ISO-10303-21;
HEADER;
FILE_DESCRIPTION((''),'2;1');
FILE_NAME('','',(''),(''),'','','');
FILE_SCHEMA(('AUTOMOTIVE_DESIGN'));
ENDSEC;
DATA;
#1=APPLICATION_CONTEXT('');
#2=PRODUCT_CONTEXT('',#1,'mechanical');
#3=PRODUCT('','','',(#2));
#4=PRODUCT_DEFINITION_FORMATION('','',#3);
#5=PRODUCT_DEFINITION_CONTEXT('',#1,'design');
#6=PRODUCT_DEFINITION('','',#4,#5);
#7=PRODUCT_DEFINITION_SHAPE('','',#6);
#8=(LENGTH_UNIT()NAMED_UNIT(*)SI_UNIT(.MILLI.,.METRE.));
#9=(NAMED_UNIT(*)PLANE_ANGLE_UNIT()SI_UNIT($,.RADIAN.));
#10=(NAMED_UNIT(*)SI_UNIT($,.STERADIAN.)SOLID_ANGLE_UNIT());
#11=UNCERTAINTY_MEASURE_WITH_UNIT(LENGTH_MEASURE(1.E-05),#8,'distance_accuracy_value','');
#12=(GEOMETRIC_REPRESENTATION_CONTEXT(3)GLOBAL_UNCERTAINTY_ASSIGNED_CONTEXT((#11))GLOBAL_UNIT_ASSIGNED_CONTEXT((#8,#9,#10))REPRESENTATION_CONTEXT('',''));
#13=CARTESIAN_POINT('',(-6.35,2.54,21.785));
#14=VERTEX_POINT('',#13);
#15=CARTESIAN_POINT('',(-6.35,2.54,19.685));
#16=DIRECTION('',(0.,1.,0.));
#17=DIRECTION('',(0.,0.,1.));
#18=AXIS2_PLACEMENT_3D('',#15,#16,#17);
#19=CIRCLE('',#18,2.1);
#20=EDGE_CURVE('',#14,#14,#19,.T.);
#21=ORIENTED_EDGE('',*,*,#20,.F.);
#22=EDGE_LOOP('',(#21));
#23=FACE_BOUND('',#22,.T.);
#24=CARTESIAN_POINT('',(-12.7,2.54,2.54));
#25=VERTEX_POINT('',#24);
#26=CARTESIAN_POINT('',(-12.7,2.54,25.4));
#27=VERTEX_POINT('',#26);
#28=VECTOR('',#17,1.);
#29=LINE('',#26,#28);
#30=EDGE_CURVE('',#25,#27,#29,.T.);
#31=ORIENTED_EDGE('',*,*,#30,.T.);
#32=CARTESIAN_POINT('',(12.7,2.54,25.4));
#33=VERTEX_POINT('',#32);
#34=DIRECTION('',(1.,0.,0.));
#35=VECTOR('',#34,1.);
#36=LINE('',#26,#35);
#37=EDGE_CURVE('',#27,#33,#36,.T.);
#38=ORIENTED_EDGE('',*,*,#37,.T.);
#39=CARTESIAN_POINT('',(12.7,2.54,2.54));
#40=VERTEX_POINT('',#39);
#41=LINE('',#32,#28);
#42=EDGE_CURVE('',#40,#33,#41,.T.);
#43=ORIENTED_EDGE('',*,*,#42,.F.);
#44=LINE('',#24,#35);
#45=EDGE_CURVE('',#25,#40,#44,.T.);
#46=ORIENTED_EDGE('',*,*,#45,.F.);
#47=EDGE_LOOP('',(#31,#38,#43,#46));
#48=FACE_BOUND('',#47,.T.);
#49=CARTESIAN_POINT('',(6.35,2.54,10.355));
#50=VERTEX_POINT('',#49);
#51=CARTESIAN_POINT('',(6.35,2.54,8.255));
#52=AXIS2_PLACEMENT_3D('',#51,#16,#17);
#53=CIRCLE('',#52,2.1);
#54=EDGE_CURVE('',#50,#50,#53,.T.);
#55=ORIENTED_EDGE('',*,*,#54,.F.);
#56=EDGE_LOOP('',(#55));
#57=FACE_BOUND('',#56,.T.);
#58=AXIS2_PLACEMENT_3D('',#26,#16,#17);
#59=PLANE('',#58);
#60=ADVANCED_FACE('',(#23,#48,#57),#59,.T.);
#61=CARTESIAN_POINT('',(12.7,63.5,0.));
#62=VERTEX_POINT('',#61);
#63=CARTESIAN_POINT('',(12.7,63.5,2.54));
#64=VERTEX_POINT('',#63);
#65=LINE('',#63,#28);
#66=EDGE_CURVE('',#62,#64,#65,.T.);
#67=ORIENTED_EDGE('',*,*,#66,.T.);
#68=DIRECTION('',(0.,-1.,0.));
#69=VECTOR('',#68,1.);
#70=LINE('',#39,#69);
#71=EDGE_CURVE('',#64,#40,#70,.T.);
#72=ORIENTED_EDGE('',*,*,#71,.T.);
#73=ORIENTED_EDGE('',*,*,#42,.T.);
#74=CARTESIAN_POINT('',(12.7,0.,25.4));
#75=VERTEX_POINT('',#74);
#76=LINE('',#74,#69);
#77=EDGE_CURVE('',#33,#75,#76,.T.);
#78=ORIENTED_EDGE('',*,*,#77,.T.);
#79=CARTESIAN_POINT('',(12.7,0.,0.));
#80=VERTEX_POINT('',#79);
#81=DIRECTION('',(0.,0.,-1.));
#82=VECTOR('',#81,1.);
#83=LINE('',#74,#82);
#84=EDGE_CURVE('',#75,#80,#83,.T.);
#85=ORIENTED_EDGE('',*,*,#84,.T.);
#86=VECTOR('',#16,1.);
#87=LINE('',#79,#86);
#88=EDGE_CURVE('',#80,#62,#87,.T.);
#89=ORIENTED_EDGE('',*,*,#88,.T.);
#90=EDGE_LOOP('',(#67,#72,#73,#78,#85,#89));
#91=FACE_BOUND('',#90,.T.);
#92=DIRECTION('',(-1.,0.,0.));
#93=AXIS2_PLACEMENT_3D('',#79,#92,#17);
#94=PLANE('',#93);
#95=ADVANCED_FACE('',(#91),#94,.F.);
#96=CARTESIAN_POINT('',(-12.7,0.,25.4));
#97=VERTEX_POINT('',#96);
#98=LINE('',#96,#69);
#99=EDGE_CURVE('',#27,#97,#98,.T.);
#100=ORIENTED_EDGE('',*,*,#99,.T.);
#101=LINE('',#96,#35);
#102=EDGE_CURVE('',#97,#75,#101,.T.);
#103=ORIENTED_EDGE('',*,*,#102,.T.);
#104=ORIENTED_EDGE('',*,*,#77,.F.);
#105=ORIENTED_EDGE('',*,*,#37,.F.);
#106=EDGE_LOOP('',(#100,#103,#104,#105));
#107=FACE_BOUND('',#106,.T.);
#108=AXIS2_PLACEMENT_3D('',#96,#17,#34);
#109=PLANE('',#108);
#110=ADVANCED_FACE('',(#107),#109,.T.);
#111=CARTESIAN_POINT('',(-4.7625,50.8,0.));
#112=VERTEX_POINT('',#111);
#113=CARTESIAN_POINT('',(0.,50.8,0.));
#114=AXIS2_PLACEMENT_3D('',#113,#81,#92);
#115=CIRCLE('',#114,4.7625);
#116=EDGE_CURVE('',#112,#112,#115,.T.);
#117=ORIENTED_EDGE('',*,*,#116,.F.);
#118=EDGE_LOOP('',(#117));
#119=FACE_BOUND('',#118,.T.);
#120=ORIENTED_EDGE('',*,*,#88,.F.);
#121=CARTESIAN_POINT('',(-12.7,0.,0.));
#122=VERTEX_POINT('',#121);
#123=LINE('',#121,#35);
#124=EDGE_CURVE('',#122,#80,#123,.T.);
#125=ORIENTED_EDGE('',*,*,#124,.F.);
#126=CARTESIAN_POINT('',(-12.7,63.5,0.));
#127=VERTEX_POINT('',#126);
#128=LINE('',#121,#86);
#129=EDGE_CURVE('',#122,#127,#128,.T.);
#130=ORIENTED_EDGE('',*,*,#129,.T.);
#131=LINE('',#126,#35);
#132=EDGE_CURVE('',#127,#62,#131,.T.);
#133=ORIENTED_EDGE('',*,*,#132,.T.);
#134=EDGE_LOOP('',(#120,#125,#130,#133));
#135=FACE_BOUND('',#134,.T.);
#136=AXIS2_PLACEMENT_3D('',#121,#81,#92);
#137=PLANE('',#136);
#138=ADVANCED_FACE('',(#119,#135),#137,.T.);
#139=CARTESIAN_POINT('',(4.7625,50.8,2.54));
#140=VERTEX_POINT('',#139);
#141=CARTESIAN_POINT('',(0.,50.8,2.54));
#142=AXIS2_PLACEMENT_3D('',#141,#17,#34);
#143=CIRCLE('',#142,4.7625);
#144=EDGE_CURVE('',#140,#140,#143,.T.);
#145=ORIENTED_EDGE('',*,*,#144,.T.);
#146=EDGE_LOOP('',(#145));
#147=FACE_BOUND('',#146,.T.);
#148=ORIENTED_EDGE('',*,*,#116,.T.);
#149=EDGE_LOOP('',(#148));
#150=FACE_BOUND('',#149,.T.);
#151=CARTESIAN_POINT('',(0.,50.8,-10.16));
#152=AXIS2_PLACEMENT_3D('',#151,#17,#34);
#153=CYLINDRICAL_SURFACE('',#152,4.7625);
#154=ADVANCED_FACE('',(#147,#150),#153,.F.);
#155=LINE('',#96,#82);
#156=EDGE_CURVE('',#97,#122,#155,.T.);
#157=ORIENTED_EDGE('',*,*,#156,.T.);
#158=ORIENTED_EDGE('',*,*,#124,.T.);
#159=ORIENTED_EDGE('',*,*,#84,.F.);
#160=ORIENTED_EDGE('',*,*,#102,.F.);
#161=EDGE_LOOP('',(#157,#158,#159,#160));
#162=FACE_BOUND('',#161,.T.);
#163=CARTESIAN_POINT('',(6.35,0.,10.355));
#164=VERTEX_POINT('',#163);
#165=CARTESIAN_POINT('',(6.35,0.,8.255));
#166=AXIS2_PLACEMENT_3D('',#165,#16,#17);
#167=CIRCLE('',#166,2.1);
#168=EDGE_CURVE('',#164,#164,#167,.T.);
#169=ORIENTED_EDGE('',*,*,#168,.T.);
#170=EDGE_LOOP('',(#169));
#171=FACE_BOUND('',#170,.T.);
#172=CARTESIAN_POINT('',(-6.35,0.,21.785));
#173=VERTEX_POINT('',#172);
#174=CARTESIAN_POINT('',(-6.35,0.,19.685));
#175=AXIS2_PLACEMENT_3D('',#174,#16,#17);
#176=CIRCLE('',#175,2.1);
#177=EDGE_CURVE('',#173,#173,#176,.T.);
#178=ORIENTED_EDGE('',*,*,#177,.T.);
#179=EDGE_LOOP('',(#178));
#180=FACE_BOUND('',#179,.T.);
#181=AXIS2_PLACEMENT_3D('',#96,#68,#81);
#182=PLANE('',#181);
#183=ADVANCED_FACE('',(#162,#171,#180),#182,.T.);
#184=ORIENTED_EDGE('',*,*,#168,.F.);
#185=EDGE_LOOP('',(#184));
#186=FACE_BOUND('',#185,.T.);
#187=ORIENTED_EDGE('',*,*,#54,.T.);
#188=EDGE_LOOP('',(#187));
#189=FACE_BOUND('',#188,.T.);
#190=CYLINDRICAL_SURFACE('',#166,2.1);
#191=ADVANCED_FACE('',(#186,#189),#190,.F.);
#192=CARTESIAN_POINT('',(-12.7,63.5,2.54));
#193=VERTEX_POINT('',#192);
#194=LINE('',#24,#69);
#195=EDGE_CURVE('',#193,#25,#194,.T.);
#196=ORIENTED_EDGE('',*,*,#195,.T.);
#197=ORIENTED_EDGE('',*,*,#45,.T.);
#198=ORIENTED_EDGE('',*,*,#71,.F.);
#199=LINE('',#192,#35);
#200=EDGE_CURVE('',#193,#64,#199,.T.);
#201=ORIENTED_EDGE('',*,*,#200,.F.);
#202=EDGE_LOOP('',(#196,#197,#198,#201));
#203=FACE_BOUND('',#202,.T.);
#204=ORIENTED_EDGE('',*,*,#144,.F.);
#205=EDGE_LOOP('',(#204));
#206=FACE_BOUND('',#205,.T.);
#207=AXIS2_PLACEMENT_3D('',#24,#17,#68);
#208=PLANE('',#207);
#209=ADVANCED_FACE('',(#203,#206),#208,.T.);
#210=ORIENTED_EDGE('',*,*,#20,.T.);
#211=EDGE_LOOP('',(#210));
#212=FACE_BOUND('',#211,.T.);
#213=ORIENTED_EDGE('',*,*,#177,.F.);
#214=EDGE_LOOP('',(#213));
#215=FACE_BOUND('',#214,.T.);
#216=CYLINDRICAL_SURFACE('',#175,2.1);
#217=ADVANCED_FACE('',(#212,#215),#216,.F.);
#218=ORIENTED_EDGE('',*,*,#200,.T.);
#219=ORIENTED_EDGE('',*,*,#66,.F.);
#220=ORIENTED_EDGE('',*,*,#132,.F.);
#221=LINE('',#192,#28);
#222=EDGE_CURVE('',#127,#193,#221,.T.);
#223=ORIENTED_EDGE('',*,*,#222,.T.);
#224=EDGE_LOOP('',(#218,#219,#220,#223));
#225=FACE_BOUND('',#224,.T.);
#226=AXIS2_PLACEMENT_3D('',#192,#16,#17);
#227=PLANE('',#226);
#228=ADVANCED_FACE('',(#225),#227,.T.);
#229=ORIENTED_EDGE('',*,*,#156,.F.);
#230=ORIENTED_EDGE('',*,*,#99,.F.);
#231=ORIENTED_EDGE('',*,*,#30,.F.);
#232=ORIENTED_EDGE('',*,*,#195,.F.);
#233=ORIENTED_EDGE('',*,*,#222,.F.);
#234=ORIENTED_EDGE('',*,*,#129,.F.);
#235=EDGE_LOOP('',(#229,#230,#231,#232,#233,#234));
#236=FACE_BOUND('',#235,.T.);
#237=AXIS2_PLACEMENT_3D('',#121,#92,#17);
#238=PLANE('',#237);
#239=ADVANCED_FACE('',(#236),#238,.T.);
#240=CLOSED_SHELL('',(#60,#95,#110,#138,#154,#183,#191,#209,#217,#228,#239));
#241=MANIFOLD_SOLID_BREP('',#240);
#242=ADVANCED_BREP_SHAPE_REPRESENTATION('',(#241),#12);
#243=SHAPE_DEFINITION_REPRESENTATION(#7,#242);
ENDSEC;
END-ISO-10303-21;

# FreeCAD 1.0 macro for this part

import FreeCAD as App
import Part
import Sketcher

V = App.Vector
Q = App.Units.Quantity


def add_polygon(sketch, points):
    """Adds a closed chain of lines whose ends are joined by coincident constraints."""
    first, n = sketch.GeometryCount, len(points)
    for a, b in zip(points, points[1:] + points[:1]):
        sketch.addGeometry(Part.LineSegment(App.Vector(*a, 0), App.Vector(*b, 0)), False)
    for i in range(n):
        sketch.addConstraint(Sketcher.Constraint("Coincident", first + i, 2, first + (i + 1) % n, 1))

doc = App.newDocument("Part")
body = doc.addObject("PartDesign::Body", "Body")

# Sketch on YZ plane
sketch1 = body.newObject("Sketcher::SketchObject", "Sketch")
sketch1.AttachmentSupport = (doc.getObject("YZ_Plane"), [""])
sketch1.MapMode = "FlatFace"
add_polygon(sketch1, [(0, 25.4), (0, 0), (63.5, 0), (63.5, 2.5), (2.5, 2.5), (2.5, 25.4)])  # lines 0-5
sketch1.addConstraint(Sketcher.Constraint("Vertical", 0))
sketch1.addConstraint(Sketcher.Constraint("Horizontal", 1))
sketch1.addConstraint(Sketcher.Constraint("Vertical", 2))
sketch1.addConstraint(Sketcher.Constraint("Horizontal", 3))
sketch1.addConstraint(Sketcher.Constraint("Vertical", 4))
sketch1.addConstraint(Sketcher.Constraint("Horizontal", 5))
sketch1.addConstraint(Sketcher.Constraint("Coincident", 0, 2, -1, 1))
sketch1.addConstraint(Sketcher.Constraint("Equal", 5, 2))
sketch1.addConstraint(Sketcher.Constraint("DistanceY", 0, 2, 0, 1, Q("1 in")))
sketch1.addConstraint(Sketcher.Constraint("DistanceX", 1, 1, 1, 2, Q("2.5 in")))
sketch1.addConstraint(Sketcher.Constraint("DistanceX", 3, 2, 3, 1, Q("2.4 in")))
pad1 = body.newObject("PartDesign::Pad", "Pad")
pad1.Profile = sketch1
pad1.Type = "TwoLengths"
pad1.Length = Q("0.5 in")
pad1.Length2 = Q("0.5 in")

# Sketch on XY plane
sketch2 = body.newObject("Sketcher::SketchObject", "Sketch001")
sketch2.AttachmentSupport = (doc.getObject("XY_Plane"), [""])
sketch2.MapMode = "FlatFace"
sketch2.AttachmentOffset = App.Placement(V(0, 0, 0.1 * 25.4), App.Rotation())
sketch2.addGeometry(Part.Circle(V(0, 50.8, 0), V(0, 0, 1), 4.8), False)
sketch2.addConstraint(Sketcher.Constraint("PointOnObject", 0, 3, -2))
sketch2.addConstraint(Sketcher.Constraint("Diameter", 0, Q("0.375 in")))
sketch2.addConstraint(Sketcher.Constraint("DistanceY", -1, 1, 0, 3, Q("2 in")))
pocket1 = body.newObject("PartDesign::Pocket", "Pocket")
pocket1.Profile = sketch2
pocket1.Length = Q("0.5 in")

# Sketch on XZ plane
sketch3 = body.newObject("Sketcher::SketchObject", "Sketch002")
sketch3.AttachmentSupport = (doc.getObject("XZ_Plane"), [""])
sketch3.MapMode = "FlatFace"
sketch3.AttachmentOffset = App.Placement(V(0, 0, -0.1 * 25.4), App.Rotation())
sketch3.addGeometry(Part.Circle(V(6.3, 8.3, 0), V(0, 0, 1), 2.1), False)
sketch3.addGeometry(Part.Circle(V(-6.3, 19.7, 0), V(0, 0, 1), 2.1), False)
sketch3.addConstraint(Sketcher.Constraint("Equal", 0, 1))
sketch3.addConstraint(Sketcher.Constraint("DistanceX", 1, 3, 0, 3, Q("0.5 in")))
sketch3.addConstraint(Sketcher.Constraint("Diameter", 0, 4.2))
sketch3.addConstraint(Sketcher.Constraint("DistanceX", -1, 1, 0, 3, Q("0.25 in")))
sketch3.addConstraint(Sketcher.Constraint("DistanceY", 0, 3, 1, 3, Q("0.45 in")))
sketch3.addConstraint(Sketcher.Constraint("DistanceY", -1, 1, 0, 3, Q("0.325 in")))
pocket2 = body.newObject("PartDesign::Pocket", "Pocket001")
pocket2.Profile = sketch3
pocket2.Type = "ThroughAll"
pocket2.Reversed = True

doc.recompute()
